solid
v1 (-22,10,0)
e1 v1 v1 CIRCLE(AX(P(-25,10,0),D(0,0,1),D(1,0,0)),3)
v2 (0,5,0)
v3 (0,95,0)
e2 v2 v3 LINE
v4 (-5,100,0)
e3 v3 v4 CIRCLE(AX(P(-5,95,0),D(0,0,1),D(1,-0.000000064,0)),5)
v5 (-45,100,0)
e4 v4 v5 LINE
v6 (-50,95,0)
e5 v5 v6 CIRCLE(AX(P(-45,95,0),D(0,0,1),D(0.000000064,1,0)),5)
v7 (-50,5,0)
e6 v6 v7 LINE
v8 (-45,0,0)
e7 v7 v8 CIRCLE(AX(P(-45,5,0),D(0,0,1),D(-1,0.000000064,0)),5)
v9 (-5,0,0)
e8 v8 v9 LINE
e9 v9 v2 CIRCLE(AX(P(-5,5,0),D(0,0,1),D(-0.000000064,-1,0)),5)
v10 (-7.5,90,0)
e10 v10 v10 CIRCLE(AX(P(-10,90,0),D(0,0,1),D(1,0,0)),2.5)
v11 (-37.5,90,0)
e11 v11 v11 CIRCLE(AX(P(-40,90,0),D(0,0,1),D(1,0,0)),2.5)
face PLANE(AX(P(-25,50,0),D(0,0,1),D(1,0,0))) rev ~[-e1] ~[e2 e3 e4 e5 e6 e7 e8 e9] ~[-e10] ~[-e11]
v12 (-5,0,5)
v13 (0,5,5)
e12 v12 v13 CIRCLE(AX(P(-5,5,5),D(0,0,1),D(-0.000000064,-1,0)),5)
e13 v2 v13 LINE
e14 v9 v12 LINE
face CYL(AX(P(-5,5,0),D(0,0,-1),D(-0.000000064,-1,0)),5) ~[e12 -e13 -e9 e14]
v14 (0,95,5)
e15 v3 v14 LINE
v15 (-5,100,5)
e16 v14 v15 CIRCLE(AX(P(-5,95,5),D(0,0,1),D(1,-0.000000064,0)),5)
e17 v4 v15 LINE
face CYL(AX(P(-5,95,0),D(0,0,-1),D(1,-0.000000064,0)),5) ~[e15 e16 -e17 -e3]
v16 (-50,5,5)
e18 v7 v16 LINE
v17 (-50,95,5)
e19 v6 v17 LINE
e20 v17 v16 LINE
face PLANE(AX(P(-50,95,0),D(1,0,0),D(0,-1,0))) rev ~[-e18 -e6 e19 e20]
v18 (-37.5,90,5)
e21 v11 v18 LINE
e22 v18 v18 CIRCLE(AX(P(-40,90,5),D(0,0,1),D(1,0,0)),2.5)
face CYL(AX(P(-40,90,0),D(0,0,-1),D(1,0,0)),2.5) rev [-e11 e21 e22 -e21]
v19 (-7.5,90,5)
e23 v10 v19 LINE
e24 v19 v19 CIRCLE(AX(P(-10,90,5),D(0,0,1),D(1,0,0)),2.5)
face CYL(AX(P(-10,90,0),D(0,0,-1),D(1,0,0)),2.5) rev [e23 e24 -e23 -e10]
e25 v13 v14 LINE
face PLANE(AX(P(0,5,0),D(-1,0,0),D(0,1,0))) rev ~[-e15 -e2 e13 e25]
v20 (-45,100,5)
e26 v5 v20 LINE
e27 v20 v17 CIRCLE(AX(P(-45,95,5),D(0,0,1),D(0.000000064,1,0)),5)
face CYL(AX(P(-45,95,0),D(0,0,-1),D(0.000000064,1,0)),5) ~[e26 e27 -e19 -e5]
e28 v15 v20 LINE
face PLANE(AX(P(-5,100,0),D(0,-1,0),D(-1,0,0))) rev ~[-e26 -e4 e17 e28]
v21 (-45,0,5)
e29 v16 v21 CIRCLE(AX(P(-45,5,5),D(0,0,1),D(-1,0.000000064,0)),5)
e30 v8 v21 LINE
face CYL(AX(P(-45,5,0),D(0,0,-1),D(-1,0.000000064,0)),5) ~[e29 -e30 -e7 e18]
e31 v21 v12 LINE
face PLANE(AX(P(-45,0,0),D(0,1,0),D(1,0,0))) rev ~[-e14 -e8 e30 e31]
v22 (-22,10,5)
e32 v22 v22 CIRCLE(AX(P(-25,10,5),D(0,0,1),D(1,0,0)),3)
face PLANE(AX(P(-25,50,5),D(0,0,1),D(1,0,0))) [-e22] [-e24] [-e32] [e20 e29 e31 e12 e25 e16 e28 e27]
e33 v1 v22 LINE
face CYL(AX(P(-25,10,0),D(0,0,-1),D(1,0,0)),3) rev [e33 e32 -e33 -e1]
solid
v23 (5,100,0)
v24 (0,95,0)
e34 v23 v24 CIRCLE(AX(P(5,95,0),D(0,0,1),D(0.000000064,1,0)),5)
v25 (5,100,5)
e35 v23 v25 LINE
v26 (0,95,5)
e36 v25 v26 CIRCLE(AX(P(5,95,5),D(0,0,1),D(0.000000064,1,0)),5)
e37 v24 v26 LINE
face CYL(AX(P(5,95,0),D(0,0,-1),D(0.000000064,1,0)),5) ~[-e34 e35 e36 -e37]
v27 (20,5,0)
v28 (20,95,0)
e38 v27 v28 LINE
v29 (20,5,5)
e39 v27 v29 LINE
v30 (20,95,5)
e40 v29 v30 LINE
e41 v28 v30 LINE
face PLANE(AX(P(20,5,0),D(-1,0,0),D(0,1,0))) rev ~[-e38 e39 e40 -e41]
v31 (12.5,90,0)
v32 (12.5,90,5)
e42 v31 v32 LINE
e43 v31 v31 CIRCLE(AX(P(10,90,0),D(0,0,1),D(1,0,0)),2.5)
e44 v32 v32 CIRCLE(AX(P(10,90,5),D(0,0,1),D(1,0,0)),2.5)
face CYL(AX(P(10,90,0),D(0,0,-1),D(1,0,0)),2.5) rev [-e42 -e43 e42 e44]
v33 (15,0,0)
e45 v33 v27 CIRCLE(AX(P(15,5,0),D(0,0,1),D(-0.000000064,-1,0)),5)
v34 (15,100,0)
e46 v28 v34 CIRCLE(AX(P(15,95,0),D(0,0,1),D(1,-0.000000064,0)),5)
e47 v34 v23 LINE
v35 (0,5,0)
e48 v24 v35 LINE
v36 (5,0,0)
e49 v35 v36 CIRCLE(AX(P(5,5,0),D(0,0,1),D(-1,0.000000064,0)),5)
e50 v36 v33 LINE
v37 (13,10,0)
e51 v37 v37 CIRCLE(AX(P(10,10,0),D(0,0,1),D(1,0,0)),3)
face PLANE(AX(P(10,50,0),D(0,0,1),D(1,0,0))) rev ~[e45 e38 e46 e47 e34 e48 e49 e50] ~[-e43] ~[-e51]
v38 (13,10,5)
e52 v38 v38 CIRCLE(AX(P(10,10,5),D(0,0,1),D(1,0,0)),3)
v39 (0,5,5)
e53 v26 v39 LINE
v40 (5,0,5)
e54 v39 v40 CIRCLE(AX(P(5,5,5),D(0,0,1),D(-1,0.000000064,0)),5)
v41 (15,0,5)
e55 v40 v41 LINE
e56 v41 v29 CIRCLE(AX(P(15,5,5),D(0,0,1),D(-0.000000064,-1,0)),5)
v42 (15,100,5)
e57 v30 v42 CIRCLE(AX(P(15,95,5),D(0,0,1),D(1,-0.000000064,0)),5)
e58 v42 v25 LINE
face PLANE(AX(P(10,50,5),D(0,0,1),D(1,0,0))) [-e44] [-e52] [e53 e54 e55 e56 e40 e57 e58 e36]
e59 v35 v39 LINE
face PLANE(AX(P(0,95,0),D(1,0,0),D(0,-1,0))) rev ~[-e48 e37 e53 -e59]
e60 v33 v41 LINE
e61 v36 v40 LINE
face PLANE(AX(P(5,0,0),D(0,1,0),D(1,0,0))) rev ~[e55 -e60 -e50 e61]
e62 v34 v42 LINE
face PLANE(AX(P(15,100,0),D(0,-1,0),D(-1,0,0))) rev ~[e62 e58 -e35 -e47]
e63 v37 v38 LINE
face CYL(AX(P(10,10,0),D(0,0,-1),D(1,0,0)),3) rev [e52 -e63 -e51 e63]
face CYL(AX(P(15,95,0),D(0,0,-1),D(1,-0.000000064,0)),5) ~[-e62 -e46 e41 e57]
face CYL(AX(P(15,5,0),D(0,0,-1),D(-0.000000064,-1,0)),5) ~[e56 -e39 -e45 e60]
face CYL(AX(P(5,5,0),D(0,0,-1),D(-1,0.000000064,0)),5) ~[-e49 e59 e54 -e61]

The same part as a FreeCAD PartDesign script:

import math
import FreeCAD as App
import Part
import Sketcher
from FreeCAD import Vector

doc = App.newDocument("Part")
body = doc.addObject("PartDesign::Body", "Body")

sketch1 = body.newObject("Sketcher::SketchObject", "Sketch")
sketch1.AttachmentSupport = (doc.getObject("XY_Plane"), [""])
sketch1.MapMode = "FlatFace"
sketch1.addGeometry([
    Part.ArcOfCircle(Part.Circle(Vector(5, 5, 0), Vector(0, 0, 1), 5), math.radians(180), math.radians(270)),
    Part.LineSegment(Vector(5, 0, 0), Vector(15, 0, 0)),
    Part.ArcOfCircle(Part.Circle(Vector(15, 5, 0), Vector(0, 0, 1), 5), math.radians(-90), math.radians(0)),
    Part.LineSegment(Vector(20, 5, 0), Vector(20, 95, 0)),
    Part.ArcOfCircle(Part.Circle(Vector(15, 95, 0), Vector(0, 0, 1), 5), math.radians(0), math.radians(90)),
    Part.LineSegment(Vector(15, 100, 0), Vector(5, 100, 0)),
    Part.ArcOfCircle(Part.Circle(Vector(5, 95, 0), Vector(0, 0, 1), 5), math.radians(90), math.radians(180)),
    Part.LineSegment(Vector(0, 95, 0), Vector(0, 5, 0)),
    Part.Circle(Vector(10, 10, 0), Vector(0, 0, 1), 3),
    Part.Circle(Vector(10, 90, 0), Vector(0, 0, 1), 2.5),
], False)
sketch1.addConstraint([
    Sketcher.Constraint("Tangent", 0, 2, 1, 1),
    Sketcher.Constraint("Tangent", 1, 2, 2, 1),
    Sketcher.Constraint("Tangent", 2, 2, 3, 1),
    Sketcher.Constraint("Tangent", 3, 2, 4, 1),
    Sketcher.Constraint("Tangent", 4, 2, 5, 1),
    Sketcher.Constraint("Tangent", 5, 2, 6, 1),
    Sketcher.Constraint("Tangent", 6, 2, 7, 1),
    Sketcher.Constraint("Tangent", 7, 2, 0, 1),
    Sketcher.Constraint("Horizontal", 1),
    Sketcher.Constraint("Vertical", 3),
    Sketcher.Constraint("Horizontal", 5),
    Sketcher.Constraint("Vertical", 7),
    Sketcher.Constraint("Equal", 0, 2),
    Sketcher.Constraint("Equal", 2, 4),
    Sketcher.Constraint("Equal", 4, 6),
    Sketcher.Constraint("PointOnObject", 0, 2, -1),
    Sketcher.Constraint("PointOnObject", 6, 2, -2),
    Sketcher.Constraint("Vertical", 8, 3, 9, 3),
    Sketcher.Constraint("Diameter", 8, 6.0),
    Sketcher.Constraint("Diameter", 9, 5.0),
    Sketcher.Constraint("Radius", 0, 5.0),
    Sketcher.Constraint("DistanceX", 1, 1, 1, 2, 10.0),
    Sketcher.Constraint("DistanceY", 3, 1, 3, 2, 90.0),
    Sketcher.Constraint("DistanceX", -1, 1, 8, 3, 10.0),
    Sketcher.Constraint("DistanceY", -1, 1, 8, 3, 10.0),
    Sketcher.Constraint("DistanceY", -1, 1, 9, 3, 90.0),
])
pad1 = body.newObject("PartDesign::Pad", "Pad")
pad1.Profile = sketch1
pad1.Length = 5
body2 = doc.addObject("PartDesign::Body", "Body001")

sketch2 = body2.newObject("Sketcher::SketchObject", "Sketch001")
sketch2.AttachmentSupport = (doc.getObject("XY_Plane001"), [""])
sketch2.MapMode = "FlatFace"
sketch2.addGeometry([
    Part.LineSegment(Vector(-45, 0, 0), Vector(-5, 0, 0)),
    Part.ArcOfCircle(Part.Circle(Vector(-5, 5, 0), Vector(0, 0, 1), 5), math.radians(-90), math.radians(0)),
    Part.LineSegment(Vector(0, 5, 0), Vector(0, 95, 0)),
    Part.ArcOfCircle(Part.Circle(Vector(-5, 95, 0), Vector(0, 0, 1), 5), math.radians(0), math.radians(90)),
    Part.LineSegment(Vector(-5, 100, 0), Vector(-45, 100, 0)),
    Part.ArcOfCircle(Part.Circle(Vector(-45, 95, 0), Vector(0, 0, 1), 5), math.radians(90), math.radians(180)),
    Part.LineSegment(Vector(-50, 95, 0), Vector(-50, 5, 0)),
    Part.ArcOfCircle(Part.Circle(Vector(-45, 5, 0), Vector(0, 0, 1), 5), math.radians(180), math.radians(270)),
    Part.Circle(Vector(-25, 10, 0), Vector(0, 0, 1), 3),
    Part.Circle(Vector(-40, 90, 0), Vector(0, 0, 1), 2.5),
    Part.Circle(Vector(-10, 90, 0), Vector(0, 0, 1), 2.5),
], False)
sketch2.addConstraint([
    Sketcher.Constraint("Tangent", 0, 2, 1, 1),
    Sketcher.Constraint("Tangent", 1, 2, 2, 1),
    Sketcher.Constraint("Tangent", 2, 2, 3, 1),
    Sketcher.Constraint("Tangent", 3, 2, 4, 1),
    Sketcher.Constraint("Tangent", 4, 2, 5, 1),
    Sketcher.Constraint("Tangent", 5, 2, 6, 1),
    Sketcher.Constraint("Tangent", 6, 2, 7, 1),
    Sketcher.Constraint("Tangent", 7, 2, 0, 1),
    Sketcher.Constraint("Horizontal", 0),
    Sketcher.Constraint("Vertical", 2),
    Sketcher.Constraint("Horizontal", 4),
    Sketcher.Constraint("Vertical", 6),
    Sketcher.Constraint("Equal", 1, 3),
    Sketcher.Constraint("Equal", 3, 5),
    Sketcher.Constraint("Equal", 5, 7),
    Sketcher.Constraint("Equal", 9, 10),
    Sketcher.Constraint("PointOnObject", 0, 2, -1),
    Sketcher.Constraint("PointOnObject", 1, 2, -2),
    Sketcher.Constraint("Horizontal", 9, 3, 10, 3),
    Sketcher.Constraint("Diameter", 8, 6.0),
    Sketcher.Constraint("Diameter", 9, 5.0),
    Sketcher.Constraint("Radius", 1, 5.0),
    Sketcher.Constraint("DistanceX", 0, 1, 0, 2, 40.0),
    Sketcher.Constraint("DistanceY", 2, 1, 2, 2, 90.0),
    Sketcher.Constraint("DistanceX", 8, 3, -1, 1, 25.0),
    Sketcher.Constraint("DistanceY", -1, 1, 8, 3, 10.0),
    Sketcher.Constraint("DistanceX", 9, 3, -1, 1, 40.0),
    Sketcher.Constraint("DistanceY", -1, 1, 9, 3, 90.0),
    Sketcher.Constraint("DistanceX", 10, 3, -1, 1, 10.0),
])
pad2 = body2.newObject("PartDesign::Pad", "Pad001")
pad2.Profile = sketch2
pad2.Length = 5

doc.recompute()
